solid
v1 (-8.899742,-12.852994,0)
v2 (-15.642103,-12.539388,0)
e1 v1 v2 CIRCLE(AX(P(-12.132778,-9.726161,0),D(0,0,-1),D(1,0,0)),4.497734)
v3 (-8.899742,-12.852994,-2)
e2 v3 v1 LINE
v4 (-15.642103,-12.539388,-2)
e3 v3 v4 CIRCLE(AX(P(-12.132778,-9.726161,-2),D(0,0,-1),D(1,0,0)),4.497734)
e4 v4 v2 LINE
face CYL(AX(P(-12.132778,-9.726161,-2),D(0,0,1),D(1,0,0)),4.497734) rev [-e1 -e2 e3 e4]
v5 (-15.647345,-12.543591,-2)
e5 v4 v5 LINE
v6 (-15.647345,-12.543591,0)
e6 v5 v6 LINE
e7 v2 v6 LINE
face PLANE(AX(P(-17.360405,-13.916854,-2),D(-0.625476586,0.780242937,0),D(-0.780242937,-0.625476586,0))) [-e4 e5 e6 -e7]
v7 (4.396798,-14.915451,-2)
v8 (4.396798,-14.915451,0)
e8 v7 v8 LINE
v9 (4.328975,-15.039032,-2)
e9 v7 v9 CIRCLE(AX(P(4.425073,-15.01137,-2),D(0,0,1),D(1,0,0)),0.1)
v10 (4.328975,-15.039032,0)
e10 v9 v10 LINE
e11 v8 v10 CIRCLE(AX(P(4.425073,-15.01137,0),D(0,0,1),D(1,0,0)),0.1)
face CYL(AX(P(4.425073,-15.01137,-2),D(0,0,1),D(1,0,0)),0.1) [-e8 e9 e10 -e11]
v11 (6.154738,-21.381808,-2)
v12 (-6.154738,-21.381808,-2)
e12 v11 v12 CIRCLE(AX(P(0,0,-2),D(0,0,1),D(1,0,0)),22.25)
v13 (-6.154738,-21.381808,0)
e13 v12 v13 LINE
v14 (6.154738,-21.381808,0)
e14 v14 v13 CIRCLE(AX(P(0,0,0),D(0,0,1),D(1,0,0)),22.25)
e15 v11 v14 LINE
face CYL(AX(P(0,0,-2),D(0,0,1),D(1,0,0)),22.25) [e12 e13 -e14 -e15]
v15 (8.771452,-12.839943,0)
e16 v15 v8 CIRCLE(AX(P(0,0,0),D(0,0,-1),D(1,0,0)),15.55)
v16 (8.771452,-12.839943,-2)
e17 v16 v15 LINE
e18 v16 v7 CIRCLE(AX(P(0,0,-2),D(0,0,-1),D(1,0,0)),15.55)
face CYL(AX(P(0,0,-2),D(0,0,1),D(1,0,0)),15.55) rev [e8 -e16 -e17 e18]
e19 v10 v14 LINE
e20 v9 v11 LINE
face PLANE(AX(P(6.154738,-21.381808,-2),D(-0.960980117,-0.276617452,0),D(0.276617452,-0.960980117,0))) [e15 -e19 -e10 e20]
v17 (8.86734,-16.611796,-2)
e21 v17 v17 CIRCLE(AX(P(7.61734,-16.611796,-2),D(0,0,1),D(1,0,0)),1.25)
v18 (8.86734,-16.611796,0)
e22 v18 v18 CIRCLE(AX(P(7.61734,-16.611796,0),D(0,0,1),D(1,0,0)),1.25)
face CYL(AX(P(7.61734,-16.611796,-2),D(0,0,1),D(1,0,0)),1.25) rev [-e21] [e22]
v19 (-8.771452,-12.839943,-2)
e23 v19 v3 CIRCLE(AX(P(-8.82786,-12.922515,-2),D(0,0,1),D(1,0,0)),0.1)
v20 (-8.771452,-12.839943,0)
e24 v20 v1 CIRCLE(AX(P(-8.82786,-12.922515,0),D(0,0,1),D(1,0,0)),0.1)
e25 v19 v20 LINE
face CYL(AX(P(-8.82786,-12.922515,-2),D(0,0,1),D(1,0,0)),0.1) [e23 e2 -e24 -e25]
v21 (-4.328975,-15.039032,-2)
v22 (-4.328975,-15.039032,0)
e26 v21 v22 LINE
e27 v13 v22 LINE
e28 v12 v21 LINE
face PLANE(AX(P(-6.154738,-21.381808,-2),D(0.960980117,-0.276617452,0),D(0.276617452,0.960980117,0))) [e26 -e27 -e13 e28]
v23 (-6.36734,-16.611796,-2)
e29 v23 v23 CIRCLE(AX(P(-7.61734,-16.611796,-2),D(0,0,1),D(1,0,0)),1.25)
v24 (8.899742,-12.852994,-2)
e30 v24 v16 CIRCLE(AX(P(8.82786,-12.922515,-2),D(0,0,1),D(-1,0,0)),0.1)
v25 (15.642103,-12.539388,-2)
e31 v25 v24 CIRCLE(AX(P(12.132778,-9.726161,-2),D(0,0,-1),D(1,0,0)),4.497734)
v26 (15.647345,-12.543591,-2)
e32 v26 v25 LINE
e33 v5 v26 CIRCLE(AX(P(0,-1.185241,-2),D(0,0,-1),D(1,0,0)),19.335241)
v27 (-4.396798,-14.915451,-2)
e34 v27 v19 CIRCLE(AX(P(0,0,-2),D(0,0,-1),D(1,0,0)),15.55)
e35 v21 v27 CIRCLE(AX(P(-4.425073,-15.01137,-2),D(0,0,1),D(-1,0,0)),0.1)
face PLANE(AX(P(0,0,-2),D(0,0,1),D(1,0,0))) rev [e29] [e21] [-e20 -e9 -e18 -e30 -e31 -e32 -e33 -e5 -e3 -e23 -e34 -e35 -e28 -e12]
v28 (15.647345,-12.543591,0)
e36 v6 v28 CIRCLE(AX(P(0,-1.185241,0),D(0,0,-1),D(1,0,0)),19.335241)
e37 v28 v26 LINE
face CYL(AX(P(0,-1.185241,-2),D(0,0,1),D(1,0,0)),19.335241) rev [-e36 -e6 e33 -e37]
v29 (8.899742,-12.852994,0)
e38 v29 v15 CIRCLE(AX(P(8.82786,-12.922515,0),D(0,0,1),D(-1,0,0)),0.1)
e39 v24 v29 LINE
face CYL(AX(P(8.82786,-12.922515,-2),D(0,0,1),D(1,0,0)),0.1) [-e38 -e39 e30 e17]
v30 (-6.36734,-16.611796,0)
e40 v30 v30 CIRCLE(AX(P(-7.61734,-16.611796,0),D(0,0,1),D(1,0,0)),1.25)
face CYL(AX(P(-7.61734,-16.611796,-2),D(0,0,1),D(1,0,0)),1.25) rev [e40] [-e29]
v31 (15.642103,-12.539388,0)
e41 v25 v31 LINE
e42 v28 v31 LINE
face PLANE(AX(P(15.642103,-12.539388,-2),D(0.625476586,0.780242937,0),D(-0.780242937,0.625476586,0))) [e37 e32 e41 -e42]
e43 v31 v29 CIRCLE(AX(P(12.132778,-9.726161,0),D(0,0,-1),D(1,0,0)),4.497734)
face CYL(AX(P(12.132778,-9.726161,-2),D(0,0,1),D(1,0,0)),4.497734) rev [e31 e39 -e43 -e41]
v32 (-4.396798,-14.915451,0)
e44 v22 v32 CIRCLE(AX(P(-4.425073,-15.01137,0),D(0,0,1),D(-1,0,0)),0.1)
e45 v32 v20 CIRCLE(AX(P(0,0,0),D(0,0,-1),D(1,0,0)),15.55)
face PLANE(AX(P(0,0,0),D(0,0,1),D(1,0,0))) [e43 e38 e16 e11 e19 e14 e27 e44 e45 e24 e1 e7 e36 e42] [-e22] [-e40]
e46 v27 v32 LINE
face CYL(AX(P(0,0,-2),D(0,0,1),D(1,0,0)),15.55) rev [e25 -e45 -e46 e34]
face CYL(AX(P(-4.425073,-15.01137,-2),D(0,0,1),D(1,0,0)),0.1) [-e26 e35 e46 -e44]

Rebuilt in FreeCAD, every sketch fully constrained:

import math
import FreeCAD as App
import Part
import Sketcher

V = App.Vector

doc = App.newDocument("Part")
body = doc.addObject("PartDesign::Body", "Body")

# Sketch on XY plane
sketch1 = body.newObject("Sketcher::SketchObject", "Sketch")
sketch1.AttachmentSupport = (doc.getObject("XY_Plane"), [""])
sketch1.MapMode = "FlatFace"
sketch1.addGeometry([
    Part.LineSegment(V(4.998669, -17.365578, 0), V(6.154738, -21.381808, 0)),  # 0
    Part.ArcOfCircle(Part.Circle(V(0, 0, 0), V(0, 0, 1), 22.25), math.radians(-73.941573), math.radians(253.941573)),  # 1
    Part.LineSegment(V(-6.154738, -21.381808, 0), V(-4.998669, -17.365578, 0)),  # 2
    Part.ArcOfCircle(Part.Circle(V(-7.61734, -16.611796, 0), V(0, 0, 1), 2.725), math.radians(-16.058427), math.radians(138.31921)),  # 3
    Part.ArcOfCircle(Part.Circle(V(-11.687734, -12.987655, 0), V(0, 0, 1), 2.725), math.radians(-134.720281), math.radians(-41.68079)),  # 4
    Part.ArcOfCircle(Part.Circle(V(0, -1.185241, 0), V(0, 0, 1), 19.335241), math.radians(-45.279719), math.radians(225.279719)),  # 5
    Part.ArcOfCircle(Part.Circle(V(11.687734, -12.987655, 0), V(0, 0, 1), 2.725), math.radians(-138.31921), math.radians(-45.279719)),  # 6
    Part.ArcOfCircle(Part.Circle(V(7.61734, -16.611796, 0), V(0, 0, 1), 2.725), math.radians(41.68079), math.radians(196.058427)),  # 7
    Part.Circle(V(7.61734, -16.611796, 0), V(0, 0, 1), 1.25),  # 8
    Part.Circle(V(-7.61734, -16.611796, 0), V(0, 0, 1), 1.25),  # 9
], False)
sketch1.addConstraint([
    Sketcher.Constraint("Coincident", 0, 2, 1, 1),
    Sketcher.Constraint("Coincident", 1, 2, 2, 1),
    Sketcher.Constraint("Coincident", 2, 2, 3, 1),
    Sketcher.Constraint("Coincident", 3, 2, 4, 2),
    Sketcher.Constraint("Coincident", 4, 1, 5, 2),
    Sketcher.Constraint("Coincident", 5, 1, 6, 2),
    Sketcher.Constraint("Coincident", 6, 1, 7, 1),
    Sketcher.Constraint("Coincident", 7, 2, 0, 1),
    Sketcher.Constraint("Coincident", 1, 3, -1, 1),
    Sketcher.Constraint("Coincident", 8, 3, 7, 3),
    Sketcher.Constraint("Coincident", 9, 3, 3, 3),
    Sketcher.Constraint("PointOnObject", 5, 3, -2),
    Sketcher.Constraint("Diameter", 8, 2.5),
    Sketcher.Constraint("Diameter", 9, 2.5),
    Sketcher.Constraint("Radius", 1, 22.25),
    Sketcher.Constraint("Radius", 3, 2.725),
    Sketcher.Constraint("Radius", 4, 2.725),
    Sketcher.Constraint("Radius", 6, 2.725),
    Sketcher.Constraint("Radius", 7, 2.725),
    Sketcher.Constraint("Radius", 5, 19.335241),
    Sketcher.Constraint("DistanceX", 0, 2, 7, 3, 1.462602),
    Sketcher.Constraint("DistanceX", 3, 3, 1, 2, 1.462602),
    Sketcher.Constraint("DistanceX", 3, 2, 1, 2, 3.497799),
    Sketcher.Constraint("DistanceX", 4, 1, 2, 2, 8.6065),
    Sketcher.Constraint("DistanceX", 0, 2, 6, 1, 3.497799),
    Sketcher.Constraint("DistanceX", 3, 3, -1, 1, 7.61734),
    Sketcher.Constraint("DistanceY", 5, 3, -1, 1, 1.185241),
    Sketcher.Constraint("DistanceX", -1, 1, 7, 3, 7.61734),
    Sketcher.Constraint("DistanceX", 2, 2, -1, 1, 4.998669),
    Sketcher.Constraint("DistanceY", 2, 2, -1, 1, 17.365578),
    Sketcher.Constraint("DistanceX", -1, 1, 5, 1, 13.60517),
    Sketcher.Constraint("DistanceX", -1, 1, 7, 2, 4.998669),
    Sketcher.Constraint("DistanceY", 7, 2, -1, 1, 17.365578),
])
pad1 = body.newObject("PartDesign::Pad", "Pad")
pad1.Profile = sketch1
pad1.Length = 2
pad1.Reversed = True

# Sketch on XY plane
sketch2 = body.newObject("Sketcher::SketchObject", "Sketch001")
sketch2.AttachmentSupport = (doc.getObject("XY_Plane"), [""])
sketch2.MapMode = "FlatFace"
sketch2.addGeometry([
    Part.LineSegment(V(4.33, -15.04, 0), V(6.15, -21.38, 0)),  # 0
    Part.ArcOfCircle(Part.Circle(V(0, 0, 0), V(0, 0, 1), 22.25), math.radians(-74), math.radians(-39)),  # 1
    Part.LineSegment(V(17.36, -13.92, 0), V(15.64, -12.54, 0)),  # 2
    Part.ArcOfCircle(Part.Circle(V(12.13, -9.73, 0), V(0, 0, 1), 4.5), math.radians(-136), math.radians(-39)),  # 3
    Part.ArcOfCircle(Part.Circle(V(8.83, -12.92, 0), V(0, 0, 1), 0.1), math.radians(44), math.radians(124)),  # 4
    Part.ArcOfCircle(Part.Circle(V(0, 0, 0), V(0, 0, 1), 15.55), math.radians(-73.58), math.radians(-55.66)),  # 5
    Part.ArcOfCircle(Part.Circle(V(4.43, -15.01, 0), V(0, 0, 1), 0.1), math.radians(106), math.radians(196)),  # 6
    Part.Circle(V(7.62, -16.61, 0), V(0, 0, 1), 1.25),  # 7
    Part.LineSegment(V(-6.15, -21.38, 0), V(-4.33, -15.04, 0)),  # 8
    Part.ArcOfCircle(Part.Circle(V(-4.43, -15.01, 0), V(0, 0, 1), 0.1), math.radians(-16), math.radians(74)),  # 9
    Part.ArcOfCircle(Part.Circle(V(0, 0, 0), V(0, 0, 1), 15.55), math.radians(-124.34), math.radians(-106.42)),  # 10
    Part.ArcOfCircle(Part.Circle(V(-8.83, -12.92, 0), V(0, 0, 1), 0.1), math.radians(56), math.radians(136)),  # 11
    Part.ArcOfCircle(Part.Circle(V(-12.13, -9.73, 0), V(0, 0, 1), 4.5), math.radians(-141), math.radians(-44)),  # 12
    Part.LineSegment(V(-15.64, -12.54, 0), V(-17.36, -13.92, 0)),  # 13
    Part.ArcOfCircle(Part.Circle(V(0, 0, 0), V(0, 0, 1), 22.25), math.radians(-141), math.radians(-106)),  # 14
    Part.Circle(V(-7.62, -16.61, 0), V(0, 0, 1), 1.25),  # 15
], False)
sketch2.addConstraint([
    Sketcher.Constraint("Coincident", 0, 2, 1, 1),
    Sketcher.Constraint("Coincident", 1, 2, 2, 1),
    Sketcher.Constraint("Coincident", 2, 2, 3, 2),
    Sketcher.Constraint("Tangent", 3, 1, 4, 1),
    Sketcher.Constraint("Tangent", 4, 2, 5, 2),
    Sketcher.Constraint("Tangent", 5, 1, 6, 1),
    Sketcher.Constraint("Tangent", 6, 2, 0, 1),
    Sketcher.Constraint("Tangent", 8, 2, 9, 1),
    Sketcher.Constraint("Tangent", 9, 2, 10, 2),
    Sketcher.Constraint("Tangent", 10, 1, 11, 1),
    Sketcher.Constraint("Tangent", 11, 2, 12, 2),
    Sketcher.Constraint("Coincident", 12, 1, 13, 1),
    Sketcher.Constraint("Coincident", 13, 2, 14, 1),
    Sketcher.Constraint("Coincident", 14, 2, 8, 1),
    Sketcher.Constraint("Coincident", 1, 3, -1, 1),
    Sketcher.Constraint("Coincident", 5, 3, -1, 1),
    Sketcher.Constraint("Coincident", 10, 3, -1, 1),
    Sketcher.Constraint("Coincident", 14, 3, -1, 1),
    Sketcher.Constraint("Equal", 4, 6),
    Sketcher.Constraint("Equal", 6, 9),
    Sketcher.Constraint("Equal", 5, 10),
    Sketcher.Constraint("Equal", 9, 11),
    Sketcher.Constraint("Equal", 3, 12),
    Sketcher.Constraint("Equal", 1, 14),
    Sketcher.Constraint("Equal", 7, 15),
    Sketcher.Constraint("Symmetric", 3, 3, 12, 3, -2),
    Sketcher.Constraint("Symmetric", 7, 3, 15, 3, -2),
    Sketcher.Constraint("Symmetric", 6, 2, 8, 2, -2),
    Sketcher.Constraint("Horizontal", 2, 2, 12, 1),
    Sketcher.Constraint("Horizontal", 1, 2, 13, 2),
    Sketcher.Constraint("Diameter", 7, 2.5),
    Sketcher.Constraint("Radius", 4, 0.1),
    Sketcher.Constraint("Radius", 1, 22.25),
    Sketcher.Constraint("Radius", 5, 15.55),
    Sketcher.Constraint("Radius", 3, 4.497734),
    Sketcher.Constraint("DistanceX", 0, 2, 7, 3, 1.462602),
    Sketcher.Constraint("DistanceX", 7, 3, 3, 1, 1.282402),
    Sketcher.Constraint("DistanceY", 7, 3, 3, 1, 3.758801),
    Sketcher.Constraint("DistanceX", 6, 2, 6, 3, 0.096098),
    Sketcher.Constraint("DistanceY", 3, 3, -1, 1, 9.726161),
    Sketcher.Constraint("DistanceX", -1, 1, 4, 3, 8.82786),
    Sketcher.Constraint("DistanceY", 2, 2, -1, 1, 12.539388),
    Sketcher.Constraint("DistanceY", 1, 2, 4, 3, 0.99434),
])
pad2 = body.newObject("PartDesign::Pad", "Pad001")
pad2.Profile = sketch2
pad2.Length = 2
pad2.Reversed = True

doc.recompute()
